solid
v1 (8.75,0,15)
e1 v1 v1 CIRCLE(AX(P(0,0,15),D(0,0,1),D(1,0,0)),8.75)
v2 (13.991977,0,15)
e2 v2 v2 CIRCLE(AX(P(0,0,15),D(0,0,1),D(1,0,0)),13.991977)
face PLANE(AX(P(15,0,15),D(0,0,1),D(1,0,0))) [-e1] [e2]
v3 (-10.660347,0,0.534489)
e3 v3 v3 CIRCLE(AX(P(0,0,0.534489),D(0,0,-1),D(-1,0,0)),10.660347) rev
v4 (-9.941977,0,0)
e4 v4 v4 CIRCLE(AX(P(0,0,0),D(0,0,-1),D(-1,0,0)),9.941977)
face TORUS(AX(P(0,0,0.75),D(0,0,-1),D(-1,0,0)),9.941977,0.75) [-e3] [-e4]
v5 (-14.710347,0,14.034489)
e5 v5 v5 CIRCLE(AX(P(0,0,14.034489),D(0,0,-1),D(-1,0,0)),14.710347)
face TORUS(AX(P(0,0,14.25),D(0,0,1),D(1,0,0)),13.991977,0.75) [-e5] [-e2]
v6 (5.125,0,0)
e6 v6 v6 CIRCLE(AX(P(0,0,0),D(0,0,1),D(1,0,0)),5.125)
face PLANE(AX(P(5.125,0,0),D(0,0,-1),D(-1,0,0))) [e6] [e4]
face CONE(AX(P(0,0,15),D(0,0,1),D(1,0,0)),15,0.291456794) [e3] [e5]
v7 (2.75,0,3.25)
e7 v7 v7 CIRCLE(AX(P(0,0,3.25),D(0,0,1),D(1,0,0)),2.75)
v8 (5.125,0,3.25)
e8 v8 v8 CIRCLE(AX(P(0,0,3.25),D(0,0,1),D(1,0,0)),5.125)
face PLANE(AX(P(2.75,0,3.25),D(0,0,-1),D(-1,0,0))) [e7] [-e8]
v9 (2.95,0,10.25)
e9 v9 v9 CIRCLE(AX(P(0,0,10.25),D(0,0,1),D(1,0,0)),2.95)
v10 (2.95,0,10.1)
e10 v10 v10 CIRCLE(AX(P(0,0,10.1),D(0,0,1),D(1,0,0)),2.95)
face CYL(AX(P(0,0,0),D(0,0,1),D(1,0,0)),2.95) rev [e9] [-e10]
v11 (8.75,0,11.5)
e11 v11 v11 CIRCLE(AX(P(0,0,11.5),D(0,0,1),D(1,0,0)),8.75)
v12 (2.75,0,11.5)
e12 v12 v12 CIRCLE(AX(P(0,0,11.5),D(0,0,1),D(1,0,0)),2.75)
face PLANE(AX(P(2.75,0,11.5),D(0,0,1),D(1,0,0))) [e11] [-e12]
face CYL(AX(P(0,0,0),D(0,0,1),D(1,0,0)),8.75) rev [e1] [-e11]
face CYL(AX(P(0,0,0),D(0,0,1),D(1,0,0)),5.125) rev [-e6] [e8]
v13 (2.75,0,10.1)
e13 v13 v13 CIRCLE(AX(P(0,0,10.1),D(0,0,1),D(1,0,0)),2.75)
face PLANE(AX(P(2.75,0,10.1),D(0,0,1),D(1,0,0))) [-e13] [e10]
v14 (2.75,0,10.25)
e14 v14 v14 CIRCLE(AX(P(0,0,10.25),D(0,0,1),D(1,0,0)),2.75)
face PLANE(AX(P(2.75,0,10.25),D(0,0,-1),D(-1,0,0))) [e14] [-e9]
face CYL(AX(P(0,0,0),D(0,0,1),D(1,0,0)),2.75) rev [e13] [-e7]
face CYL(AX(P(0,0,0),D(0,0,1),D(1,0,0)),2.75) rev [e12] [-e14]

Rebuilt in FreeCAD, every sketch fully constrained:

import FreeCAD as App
import Part
import Sketcher

V = App.Vector
Q = App.Units.Quantity


def edges_at(feature, points):
    """Names of the edges that pass closest to the given points."""
    edges = feature.Shape.Edges
    near = lambda p: min(range(len(edges)), key=lambda i: edges[i].distToShape(Part.Vertex(*p))[0])
    return sorted({f"Edge{near(p) + 1}" for p in points})

doc = App.newDocument("Part")
body = doc.addObject("PartDesign::Body", "Body")

# Sketch on XZ plane
sketch1 = body.newObject("Sketcher::SketchObject", "Sketch")
sketch1.AttachmentSupport = (doc.getObject("XZ_Plane"), [""])
sketch1.MapMode = "FlatFace"
sketch1.addGeometry([
    Part.LineSegment(V(10.5, 0, 0), V(5.125, 0, 0)),  # 0
    Part.LineSegment(V(5.125, 0, 0), V(5.125, 3.25, 0)),  # 1
    Part.LineSegment(V(5.125, 3.25, 0), V(2.75, 3.25, 0)),  # 2
    Part.LineSegment(V(2.75, 3.25, 0), V(2.75, 10.1, 0)),  # 3
    Part.LineSegment(V(2.75, 10.1, 0), V(2.95, 10.1, 0)),  # 4
    Part.LineSegment(V(2.95, 10.1, 0), V(2.95, 10.25, 0)),  # 5
    Part.LineSegment(V(2.95, 10.25, 0), V(2.75, 10.25, 0)),  # 6
    Part.LineSegment(V(2.75, 10.25, 0), V(2.75, 11.5, 0)),  # 7
    Part.LineSegment(V(2.75, 11.5, 0), V(8.75, 11.5, 0)),  # 8
    Part.LineSegment(V(8.75, 11.5, 0), V(8.75, 15, 0)),  # 9
    Part.LineSegment(V(8.75, 15, 0), V(15, 15, 0)),  # 10
    Part.LineSegment(V(15, 15, 0), V(10.5, 0, 0)),  # 11
], False)
sketch1.addConstraint([
    Sketcher.Constraint("Coincident", 0, 2, 1, 1),
    Sketcher.Constraint("Coincident", 1, 2, 2, 1),
    Sketcher.Constraint("Coincident", 2, 2, 3, 1),
    Sketcher.Constraint("Coincident", 3, 2, 4, 1),
    Sketcher.Constraint("Coincident", 4, 2, 5, 1),
    Sketcher.Constraint("Coincident", 5, 2, 6, 1),
    Sketcher.Constraint("Coincident", 6, 2, 7, 1),
    Sketcher.Constraint("Coincident", 7, 2, 8, 1),
    Sketcher.Constraint("Coincident", 8, 2, 9, 1),
    Sketcher.Constraint("Coincident", 9, 2, 10, 1),
    Sketcher.Constraint("Coincident", 10, 2, 11, 1),
    Sketcher.Constraint("Coincident", 11, 2, 0, 1),
    Sketcher.Constraint("Horizontal", 0),
    Sketcher.Constraint("Vertical", 1),
    Sketcher.Constraint("Horizontal", 2),
    Sketcher.Constraint("Vertical", 3),
    Sketcher.Constraint("Horizontal", 4),
    Sketcher.Constraint("Vertical", 5),
    Sketcher.Constraint("Horizontal", 6),
    Sketcher.Constraint("Vertical", 7),
    Sketcher.Constraint("Horizontal", 8),
    Sketcher.Constraint("Vertical", 9),
    Sketcher.Constraint("Horizontal", 10),
    Sketcher.Constraint("PointOnObject", 0, 2, -1),
    Sketcher.Constraint("Vertical", 3, 2, 6, 2),
    Sketcher.Constraint("DistanceX", 8, 1, 8, 2, Q("6 mm")),
    Sketcher.Constraint("DistanceX", 4, 1, 4, 2, Q("0.2 mm")),
    Sketcher.Constraint("DistanceY", 9, 1, 9, 2, Q("3.5 mm")),
    Sketcher.Constraint("DistanceY", -1, 1, 9, 2, Q("15 mm")),
    Sketcher.Constraint("DistanceX", -1, 1, 10, 2, Q("15 mm")),
    Sketcher.Constraint("DistanceY", 2, 2, 5, 2, Q("7 mm")),
    Sketcher.Constraint("DistanceX", 10, 1, 10, 2, Q("6.25 mm")),
    Sketcher.Constraint("DistanceY", 1, 1, 1, 2, Q("3.25 mm")),
    Sketcher.Constraint("DistanceY", 3, 1, 3, 2, Q("6.85 mm")),
    Sketcher.Constraint("DistanceX", -1, 1, 11, 2, Q("10.5 mm")),
    Sketcher.Constraint("DistanceX", 0, 2, 0, 1, Q("5.375 mm")),
])
revolution = body.newObject("PartDesign::Revolution", "Revolution")
revolution.Profile = sketch1
revolution.ReferenceAxis = (sketch1, ["V_Axis"])
revolution.Angle = 360
doc.recompute()

fillet = body.newObject("PartDesign::Fillet", "Fillet")
fillet.Base = (revolution, edges_at(revolution, [(-10.5, 0, 0), (-15, 0, 15)]))
fillet.Radius = 0.75

doc.recompute()
